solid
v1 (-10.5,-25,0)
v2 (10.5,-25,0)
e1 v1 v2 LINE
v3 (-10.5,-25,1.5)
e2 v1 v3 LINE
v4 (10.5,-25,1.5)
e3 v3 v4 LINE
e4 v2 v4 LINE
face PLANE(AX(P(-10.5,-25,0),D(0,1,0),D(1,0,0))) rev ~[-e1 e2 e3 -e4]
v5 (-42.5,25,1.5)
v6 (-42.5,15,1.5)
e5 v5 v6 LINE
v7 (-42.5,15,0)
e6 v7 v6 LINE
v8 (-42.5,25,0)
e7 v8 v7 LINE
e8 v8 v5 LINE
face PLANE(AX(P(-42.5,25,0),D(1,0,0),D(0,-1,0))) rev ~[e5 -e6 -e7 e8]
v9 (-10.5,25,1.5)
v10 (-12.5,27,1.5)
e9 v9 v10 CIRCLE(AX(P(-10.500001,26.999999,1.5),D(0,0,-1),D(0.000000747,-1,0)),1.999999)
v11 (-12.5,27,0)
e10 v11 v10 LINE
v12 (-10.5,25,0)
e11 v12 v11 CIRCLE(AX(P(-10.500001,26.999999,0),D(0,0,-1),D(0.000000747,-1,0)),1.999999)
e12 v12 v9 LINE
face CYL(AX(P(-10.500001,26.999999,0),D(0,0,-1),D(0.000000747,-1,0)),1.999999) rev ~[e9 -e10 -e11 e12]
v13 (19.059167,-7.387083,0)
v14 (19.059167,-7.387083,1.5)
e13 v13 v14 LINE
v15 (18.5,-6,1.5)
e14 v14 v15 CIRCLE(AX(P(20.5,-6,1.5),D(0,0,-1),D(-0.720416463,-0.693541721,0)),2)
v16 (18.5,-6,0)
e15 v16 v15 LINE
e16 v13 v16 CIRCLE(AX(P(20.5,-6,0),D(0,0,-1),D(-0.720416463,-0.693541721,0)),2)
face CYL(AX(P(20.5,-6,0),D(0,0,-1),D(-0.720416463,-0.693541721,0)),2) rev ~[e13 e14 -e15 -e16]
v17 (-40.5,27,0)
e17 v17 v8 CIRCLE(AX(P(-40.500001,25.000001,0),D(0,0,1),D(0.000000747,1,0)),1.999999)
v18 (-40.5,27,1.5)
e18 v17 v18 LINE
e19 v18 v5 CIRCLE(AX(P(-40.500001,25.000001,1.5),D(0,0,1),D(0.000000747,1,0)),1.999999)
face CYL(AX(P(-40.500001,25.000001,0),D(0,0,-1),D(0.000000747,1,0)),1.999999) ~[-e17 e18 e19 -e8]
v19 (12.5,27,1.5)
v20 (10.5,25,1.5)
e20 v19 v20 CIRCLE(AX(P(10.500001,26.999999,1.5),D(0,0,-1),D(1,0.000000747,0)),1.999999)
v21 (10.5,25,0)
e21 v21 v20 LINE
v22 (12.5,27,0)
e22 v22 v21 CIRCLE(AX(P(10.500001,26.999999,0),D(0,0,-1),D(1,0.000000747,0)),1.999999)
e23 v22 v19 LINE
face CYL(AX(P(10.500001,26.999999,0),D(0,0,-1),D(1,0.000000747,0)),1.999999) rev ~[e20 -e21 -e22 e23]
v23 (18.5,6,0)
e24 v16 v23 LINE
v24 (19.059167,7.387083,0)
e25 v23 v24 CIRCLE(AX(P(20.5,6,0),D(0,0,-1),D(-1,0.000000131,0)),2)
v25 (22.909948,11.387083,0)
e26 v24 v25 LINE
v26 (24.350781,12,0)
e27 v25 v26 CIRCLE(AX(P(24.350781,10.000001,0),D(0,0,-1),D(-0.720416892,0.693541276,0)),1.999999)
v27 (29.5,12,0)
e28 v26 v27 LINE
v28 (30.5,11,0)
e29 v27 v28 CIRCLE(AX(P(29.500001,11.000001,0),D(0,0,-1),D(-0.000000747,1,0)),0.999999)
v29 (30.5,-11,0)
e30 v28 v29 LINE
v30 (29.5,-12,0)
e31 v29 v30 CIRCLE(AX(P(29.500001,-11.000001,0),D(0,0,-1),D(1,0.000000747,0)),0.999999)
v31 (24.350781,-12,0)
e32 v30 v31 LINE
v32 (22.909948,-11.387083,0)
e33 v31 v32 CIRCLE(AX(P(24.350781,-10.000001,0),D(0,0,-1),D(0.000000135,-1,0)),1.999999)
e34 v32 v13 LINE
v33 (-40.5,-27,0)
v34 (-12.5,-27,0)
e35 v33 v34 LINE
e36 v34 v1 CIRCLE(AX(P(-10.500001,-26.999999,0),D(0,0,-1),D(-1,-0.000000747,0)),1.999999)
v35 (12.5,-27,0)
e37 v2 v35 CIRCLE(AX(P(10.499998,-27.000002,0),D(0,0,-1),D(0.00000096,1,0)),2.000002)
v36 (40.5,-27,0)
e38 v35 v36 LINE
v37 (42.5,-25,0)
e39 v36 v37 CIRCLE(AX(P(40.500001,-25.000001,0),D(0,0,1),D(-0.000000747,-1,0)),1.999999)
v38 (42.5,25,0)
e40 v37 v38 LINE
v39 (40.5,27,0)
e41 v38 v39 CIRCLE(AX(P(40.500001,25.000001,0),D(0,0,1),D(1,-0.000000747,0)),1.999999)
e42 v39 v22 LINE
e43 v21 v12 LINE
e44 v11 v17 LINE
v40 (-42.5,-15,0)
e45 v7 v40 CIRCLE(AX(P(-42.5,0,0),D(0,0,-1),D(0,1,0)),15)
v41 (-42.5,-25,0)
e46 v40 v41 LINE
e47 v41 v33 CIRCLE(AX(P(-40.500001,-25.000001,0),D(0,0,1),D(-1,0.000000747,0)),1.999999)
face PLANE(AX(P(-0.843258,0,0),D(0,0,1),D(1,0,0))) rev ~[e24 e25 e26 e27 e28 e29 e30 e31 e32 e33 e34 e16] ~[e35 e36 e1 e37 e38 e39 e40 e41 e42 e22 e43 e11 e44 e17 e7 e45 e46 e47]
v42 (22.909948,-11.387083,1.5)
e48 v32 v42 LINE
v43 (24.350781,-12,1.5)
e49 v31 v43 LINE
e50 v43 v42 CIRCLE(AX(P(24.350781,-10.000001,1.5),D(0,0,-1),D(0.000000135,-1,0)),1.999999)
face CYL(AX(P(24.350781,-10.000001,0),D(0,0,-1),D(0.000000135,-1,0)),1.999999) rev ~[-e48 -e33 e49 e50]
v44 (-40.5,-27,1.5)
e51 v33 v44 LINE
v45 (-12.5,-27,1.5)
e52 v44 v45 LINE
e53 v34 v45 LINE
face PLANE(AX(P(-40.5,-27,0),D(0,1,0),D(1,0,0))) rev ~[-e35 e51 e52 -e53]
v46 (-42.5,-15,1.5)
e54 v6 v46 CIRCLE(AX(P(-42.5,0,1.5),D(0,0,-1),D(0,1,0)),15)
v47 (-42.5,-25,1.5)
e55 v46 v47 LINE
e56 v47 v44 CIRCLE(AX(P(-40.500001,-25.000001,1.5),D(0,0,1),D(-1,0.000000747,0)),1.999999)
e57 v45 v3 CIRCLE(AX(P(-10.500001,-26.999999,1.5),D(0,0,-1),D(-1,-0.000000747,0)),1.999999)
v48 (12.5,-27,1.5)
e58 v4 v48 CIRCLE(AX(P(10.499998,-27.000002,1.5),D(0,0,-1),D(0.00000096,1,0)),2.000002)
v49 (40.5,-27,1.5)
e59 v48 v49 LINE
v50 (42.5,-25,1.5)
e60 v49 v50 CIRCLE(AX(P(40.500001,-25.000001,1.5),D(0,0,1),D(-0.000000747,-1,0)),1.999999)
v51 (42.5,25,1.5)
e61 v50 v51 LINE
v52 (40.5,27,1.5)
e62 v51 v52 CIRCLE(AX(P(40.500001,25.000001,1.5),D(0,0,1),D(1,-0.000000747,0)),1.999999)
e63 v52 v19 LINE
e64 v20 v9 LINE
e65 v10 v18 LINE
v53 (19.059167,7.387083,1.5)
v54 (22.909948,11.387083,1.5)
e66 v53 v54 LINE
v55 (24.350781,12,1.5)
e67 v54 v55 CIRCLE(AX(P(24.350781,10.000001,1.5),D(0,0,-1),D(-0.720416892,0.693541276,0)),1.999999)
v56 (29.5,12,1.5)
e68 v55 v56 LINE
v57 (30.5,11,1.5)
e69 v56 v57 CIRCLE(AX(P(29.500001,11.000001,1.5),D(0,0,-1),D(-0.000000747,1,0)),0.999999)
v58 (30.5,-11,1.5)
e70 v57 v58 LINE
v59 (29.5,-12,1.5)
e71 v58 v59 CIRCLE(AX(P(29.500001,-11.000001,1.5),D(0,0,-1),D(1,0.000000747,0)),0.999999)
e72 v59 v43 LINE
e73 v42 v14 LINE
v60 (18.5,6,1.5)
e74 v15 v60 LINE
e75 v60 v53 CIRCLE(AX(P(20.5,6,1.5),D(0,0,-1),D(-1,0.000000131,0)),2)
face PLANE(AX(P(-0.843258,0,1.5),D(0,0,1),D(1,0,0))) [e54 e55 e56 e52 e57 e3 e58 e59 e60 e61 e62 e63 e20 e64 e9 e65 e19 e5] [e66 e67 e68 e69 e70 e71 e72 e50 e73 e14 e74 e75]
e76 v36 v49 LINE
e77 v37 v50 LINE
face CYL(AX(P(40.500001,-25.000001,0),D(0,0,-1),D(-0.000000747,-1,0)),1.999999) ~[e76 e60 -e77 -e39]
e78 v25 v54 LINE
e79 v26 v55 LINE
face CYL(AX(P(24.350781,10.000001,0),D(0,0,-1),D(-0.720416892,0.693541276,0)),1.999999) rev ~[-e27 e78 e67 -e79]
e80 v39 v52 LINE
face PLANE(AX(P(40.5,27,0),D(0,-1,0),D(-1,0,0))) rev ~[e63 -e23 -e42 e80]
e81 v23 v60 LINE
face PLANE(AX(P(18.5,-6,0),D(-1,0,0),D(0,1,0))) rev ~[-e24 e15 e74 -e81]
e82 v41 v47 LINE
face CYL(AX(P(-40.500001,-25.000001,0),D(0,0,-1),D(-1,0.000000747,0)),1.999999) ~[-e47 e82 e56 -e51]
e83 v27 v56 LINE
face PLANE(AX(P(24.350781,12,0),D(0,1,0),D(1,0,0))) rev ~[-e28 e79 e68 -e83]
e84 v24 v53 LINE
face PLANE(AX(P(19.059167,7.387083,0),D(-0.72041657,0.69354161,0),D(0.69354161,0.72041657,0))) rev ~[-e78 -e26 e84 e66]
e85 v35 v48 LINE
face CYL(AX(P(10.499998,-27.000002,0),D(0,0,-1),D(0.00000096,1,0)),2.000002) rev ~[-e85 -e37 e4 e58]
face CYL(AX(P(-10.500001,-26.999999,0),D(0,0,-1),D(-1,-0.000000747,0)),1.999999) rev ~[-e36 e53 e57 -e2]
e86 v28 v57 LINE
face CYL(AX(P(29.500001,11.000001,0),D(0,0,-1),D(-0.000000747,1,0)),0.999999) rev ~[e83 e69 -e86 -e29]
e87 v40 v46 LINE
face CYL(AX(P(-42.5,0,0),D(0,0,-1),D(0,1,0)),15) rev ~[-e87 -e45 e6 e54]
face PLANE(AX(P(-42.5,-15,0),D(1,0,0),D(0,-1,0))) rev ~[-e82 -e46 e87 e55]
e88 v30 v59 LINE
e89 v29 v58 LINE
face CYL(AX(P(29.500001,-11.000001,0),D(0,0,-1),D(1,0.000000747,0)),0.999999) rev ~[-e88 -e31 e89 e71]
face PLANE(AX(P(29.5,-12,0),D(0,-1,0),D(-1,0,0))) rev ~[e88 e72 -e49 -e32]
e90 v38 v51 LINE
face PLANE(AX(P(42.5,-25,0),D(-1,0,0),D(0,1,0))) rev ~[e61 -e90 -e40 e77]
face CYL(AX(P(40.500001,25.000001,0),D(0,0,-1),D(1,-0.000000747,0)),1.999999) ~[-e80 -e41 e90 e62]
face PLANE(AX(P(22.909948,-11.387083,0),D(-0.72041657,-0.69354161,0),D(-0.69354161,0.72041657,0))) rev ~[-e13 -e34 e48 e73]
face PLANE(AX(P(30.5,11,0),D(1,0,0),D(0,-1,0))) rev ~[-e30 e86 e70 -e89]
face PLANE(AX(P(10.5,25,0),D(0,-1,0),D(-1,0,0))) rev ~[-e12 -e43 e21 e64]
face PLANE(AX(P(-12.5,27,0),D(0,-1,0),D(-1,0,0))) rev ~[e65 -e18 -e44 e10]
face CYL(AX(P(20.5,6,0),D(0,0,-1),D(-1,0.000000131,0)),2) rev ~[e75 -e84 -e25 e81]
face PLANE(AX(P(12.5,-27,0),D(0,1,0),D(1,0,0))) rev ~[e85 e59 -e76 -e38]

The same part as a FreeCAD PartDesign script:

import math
import FreeCAD as App
import Part
import Sketcher

doc = App.newDocument("Part")
body = doc.addObject("PartDesign::Body", "Body")

sketch1 = body.newObject("Sketcher::SketchObject", "Sketch")
sketch1.AttachmentSupport = (doc.getObject("XY_Plane"), [""])
sketch1.MapMode = "FlatFace"
sketch1.addGeometry(Part.LineSegment(App.Vector(12.5, -27, 0), App.Vector(40.5, -27, 0)), False)
sketch1.addGeometry(Part.ArcOfCircle(Part.Circle(App.Vector(40.500001, -25.000001, 0), App.Vector(0, 0, 1), 1.999999), math.radians(-90.000043), math.radians(0.000043)), False)
sketch1.addGeometry(Part.LineSegment(App.Vector(42.5, -25, 0), App.Vector(42.5, 25, 0)), False)
sketch1.addGeometry(Part.ArcOfCircle(Part.Circle(App.Vector(40.500001, 25.000001, 0), App.Vector(0, 0, 1), 1.999999), math.radians(-0.000043), math.radians(90.000043)), False)
sketch1.addGeometry(Part.LineSegment(App.Vector(40.5, 27, 0), App.Vector(12.5, 27, 0)), False)
sketch1.addGeometry(Part.ArcOfCircle(Part.Circle(App.Vector(10.500001, 26.999999, 0), App.Vector(0, 0, 1), 1.999999), math.radians(-90.000043), math.radians(0.000043)), False)
sketch1.addGeometry(Part.LineSegment(App.Vector(10.5, 25, 0), App.Vector(-10.5, 25, 0)), False)
sketch1.addGeometry(Part.ArcOfCircle(Part.Circle(App.Vector(-10.500001, 26.999999, 0), App.Vector(0, 0, 1), 1.999999), math.radians(179.999957), math.radians(270.000043)), False)
sketch1.addGeometry(Part.LineSegment(App.Vector(-12.5, 27, 0), App.Vector(-40.5, 27, 0)), False)
sketch1.addGeometry(Part.ArcOfCircle(Part.Circle(App.Vector(-40.500001, 25.000001, 0), App.Vector(0, 0, 1), 1.999999), math.radians(89.999957), math.radians(180.000043)), False)
sketch1.addGeometry(Part.LineSegment(App.Vector(-42.5, 25, 0), App.Vector(-42.5, 15, 0)), False)
sketch1.addGeometry(Part.ArcOfCircle(Part.Circle(App.Vector(-42.5, 0, 0), App.Vector(0, 0, 1), 15), math.radians(-90), math.radians(90)), False)
sketch1.addGeometry(Part.LineSegment(App.Vector(-42.5, -15, 0), App.Vector(-42.5, -25, 0)), False)
sketch1.addGeometry(Part.ArcOfCircle(Part.Circle(App.Vector(-40.500001, -25.000001, 0), App.Vector(0, 0, 1), 1.999999), math.radians(179.999957), math.radians(270.000043)), False)
sketch1.addGeometry(Part.LineSegment(App.Vector(-40.5, -27, 0), App.Vector(-12.5, -27, 0)), False)
sketch1.addGeometry(Part.ArcOfCircle(Part.Circle(App.Vector(-10.500001, -26.999999, 0), App.Vector(0, 0, 1), 1.999999), math.radians(89.999957), math.radians(180.000043)), False)
sketch1.addGeometry(Part.LineSegment(App.Vector(-10.5, -25, 0), App.Vector(10.5, -25, 0)), False)
sketch1.addGeometry(Part.ArcOfCircle(Part.Circle(App.Vector(10.499998, -27.000002, 0), App.Vector(0, 0, 1), 2.000002), math.radians(0.000055), math.radians(89.999945)), False)
sketch1.addGeometry(Part.ArcOfCircle(Part.Circle(App.Vector(29.500001, 11.000001, 0), App.Vector(0, 0, 1), 0.999999), math.radians(-0.000043), math.radians(90.000043)), False)
sketch1.addGeometry(Part.LineSegment(App.Vector(30.5, 11, 0), App.Vector(30.5, -11, 0)), False)
sketch1.addGeometry(Part.ArcOfCircle(Part.Circle(App.Vector(29.500001, -11.000001, 0), App.Vector(0, 0, 1), 0.999999), math.radians(-90.000043), math.radians(0.000043)), False)
sketch1.addGeometry(Part.LineSegment(App.Vector(29.5, -12, 0), App.Vector(24.350781, -12, 0)), False)
sketch1.addGeometry(Part.ArcOfCircle(Part.Circle(App.Vector(24.350781, -10.000001, 0), App.Vector(0, 0, 1), 1.999999), math.radians(-136.088911), math.radians(-89.999992)), False)
sketch1.addGeometry(Part.LineSegment(App.Vector(22.909948, -11.387083, 0), App.Vector(19.059167, -7.387083, 0)), False)
sketch1.addGeometry(Part.ArcOfCircle(Part.Circle(App.Vector(20.5, -6, 0), App.Vector(0, 0, 1), 2), math.radians(-179.999993), math.radians(-136.088875)), False)
sketch1.addGeometry(Part.LineSegment(App.Vector(18.5, -6, 0), App.Vector(18.5, 6, 0)), False)
sketch1.addGeometry(Part.ArcOfCircle(Part.Circle(App.Vector(20.5, 6, 0), App.Vector(0, 0, 1), 2), math.radians(136.088875), math.radians(179.999993)), False)
sketch1.addGeometry(Part.LineSegment(App.Vector(19.059167, 7.387083, 0), App.Vector(22.909948, 11.387083, 0)), False)
sketch1.addGeometry(Part.ArcOfCircle(Part.Circle(App.Vector(24.350781, 10.000001, 0), App.Vector(0, 0, 1), 1.999999), math.radians(89.999992), math.radians(136.088911)), False)
sketch1.addGeometry(Part.LineSegment(App.Vector(24.350781, 12, 0), App.Vector(29.5, 12, 0)), False)
sketch1.addConstraint(Sketcher.Constraint("Tangent", 0, 2, 1, 1))
sketch1.addConstraint(Sketcher.Constraint("Tangent", 1, 2, 2, 1))
sketch1.addConstraint(Sketcher.Constraint("Tangent", 2, 2, 3, 1))
sketch1.addConstraint(Sketcher.Constraint("Tangent", 3, 2, 4, 1))
sketch1.addConstraint(Sketcher.Constraint("Coincident", 4, 2, 5, 2))
sketch1.addConstraint(Sketcher.Constraint("Tangent", 5, 1, 6, 1))
sketch1.addConstraint(Sketcher.Constraint("Tangent", 6, 2, 7, 2))
sketch1.addConstraint(Sketcher.Constraint("Coincident", 7, 1, 8, 1))
sketch1.addConstraint(Sketcher.Constraint("Tangent", 8, 2, 9, 1))
sketch1.addConstraint(Sketcher.Constraint("Tangent", 9, 2, 10, 1))
sketch1.addConstraint(Sketcher.Constraint("Coincident", 10, 2, 11, 2))
sketch1.addConstraint(Sketcher.Constraint("Coincident", 11, 1, 12, 1))
sketch1.addConstraint(Sketcher.Constraint("Tangent", 12, 2, 13, 1))
sketch1.addConstraint(Sketcher.Constraint("Tangent", 13, 2, 14, 1))
sketch1.addConstraint(Sketcher.Constraint("Coincident", 14, 2, 15, 2))
sketch1.addConstraint(Sketcher.Constraint("Tangent", 15, 1, 16, 1))
sketch1.addConstraint(Sketcher.Constraint("Tangent", 16, 2, 17, 2))
sketch1.addConstraint(Sketcher.Constraint("Coincident", 17, 1, 0, 1))
sketch1.addConstraint(Sketcher.Constraint("Tangent", 18, 1, 19, 1))
sketch1.addConstraint(Sketcher.Constraint("Tangent", 19, 2, 20, 2))
sketch1.addConstraint(Sketcher.Constraint("Tangent", 20, 1, 21, 1))
sketch1.addConstraint(Sketcher.Constraint("Tangent", 21, 2, 22, 2))
sketch1.addConstraint(Sketcher.Constraint("Tangent", 22, 1, 23, 1))
sketch1.addConstraint(Sketcher.Constraint("Tangent", 23, 2, 24, 2))
sketch1.addConstraint(Sketcher.Constraint("Tangent", 24, 1, 25, 1))
sketch1.addConstraint(Sketcher.Constraint("Tangent", 25, 2, 26, 2))
sketch1.addConstraint(Sketcher.Constraint("Tangent", 26, 1, 27, 1))
sketch1.addConstraint(Sketcher.Constraint("Tangent", 27, 2, 28, 2))
sketch1.addConstraint(Sketcher.Constraint("Tangent", 28, 1, 29, 1))
sketch1.addConstraint(Sketcher.Constraint("Tangent", 29, 2, 18, 2))
sketch1.addConstraint(Sketcher.Constraint("Horizontal", 0))
sketch1.addConstraint(Sketcher.Constraint("Vertical", 2))
sketch1.addConstraint(Sketcher.Constraint("Horizontal", 4))
sketch1.addConstraint(Sketcher.Constraint("Horizontal", 6))
sketch1.addConstraint(Sketcher.Constraint("Horizontal", 8))
sketch1.addConstraint(Sketcher.Constraint("Vertical", 10))
sketch1.addConstraint(Sketcher.Constraint("Vertical", 12))
sketch1.addConstraint(Sketcher.Constraint("Horizontal", 14))
sketch1.addConstraint(Sketcher.Constraint("Horizontal", 16))
sketch1.addConstraint(Sketcher.Constraint("Vertical", 19))
sketch1.addConstraint(Sketcher.Constraint("Horizontal", 21))
sketch1.addConstraint(Sketcher.Constraint("Vertical", 25))
sketch1.addConstraint(Sketcher.Constraint("Horizontal", 29))
sketch1.addConstraint(Sketcher.Constraint("Equal", 1, 3))
sketch1.addConstraint(Sketcher.Constraint("Equal", 3, 5))
sketch1.addConstraint(Sketcher.Constraint("Equal", 5, 7))
sketch1.addConstraint(Sketcher.Constraint("Equal", 7, 9))
sketch1.addConstraint(Sketcher.Constraint("Equal", 9, 13))
sketch1.addConstraint(Sketcher.Constraint("Equal", 13, 15))
sketch1.addConstraint(Sketcher.Constraint("Equal", 18, 20))
sketch1.addConstraint(Sketcher.Constraint("Equal", 15, 22))
sketch1.addConstraint(Sketcher.Constraint("Equal", 22, 24))
sketch1.addConstraint(Sketcher.Constraint("Equal", 24, 26))
sketch1.addConstraint(Sketcher.Constraint("Equal", 26, 28))
sketch1.addConstraint(Sketcher.Constraint("Symmetric", 1, 3, 9, 3, -1, 1))
sketch1.addConstraint(Sketcher.Constraint("Symmetric", 3, 3, 13, 3, -1, 1))
sketch1.addConstraint(Sketcher.Constraint("Symmetric", 5, 3, 15, 3, -1, 1))
sketch1.addConstraint(Sketcher.Constraint("Symmetric", 7, 3, 17, 3, -1, 1))
sketch1.addConstraint(Sketcher.Constraint("Symmetric", 4, 2, 7, 1, -2))
sketch1.addConstraint(Sketcher.Constraint("Symmetric", 22, 3, 28, 3, -1))
sketch1.addConstraint(Sketcher.Constraint("PointOnObject", 11, 3, -1))
sketch1.addConstraint(Sketcher.Constraint("Horizontal", 17, 3, 0, 2))
sketch1.addConstraint(Sketcher.Constraint("Vertical", 11, 3, 9, 2))
sketch1.addConstraint(Sketcher.Constraint("Vertical", 23, 2, 26, 1))
sketch1.addConstraint(Sketcher.Constraint("Radius", 1, 1.999999))
sketch1.addConstraint(Sketcher.Constraint("Radius", 11, 15.0))
sketch1.addConstraint(Sketcher.Constraint("Radius", 18, 0.999999))
sketch1.addConstraint(Sketcher.Constraint("DistanceX", 0, 1, 0, 2, 28.0))
sketch1.addConstraint(Sketcher.Constraint("DistanceX", 6, 2, 6, 1, 21.0))
sketch1.addConstraint(Sketcher.Constraint("DistanceY", 2, 1, 2, 2, 50.0))
sketch1.addConstraint(Sketcher.Constraint("DistanceY", 19, 2, 19, 1, 22.0))
sketch1.addConstraint(Sketcher.Constraint("DistanceY", 25, 1, 25, 2, 12.0))
sketch1.addConstraint(Sketcher.Constraint("DistanceX", 18, 3, 3, 3, 11.000001))
sketch1.addConstraint(Sketcher.Constraint("DistanceX", 24, 3, 20, 3, 9.000001))
sketch1.addConstraint(Sketcher.Constraint("DistanceX", 21, 2, 21, 1, 5.149219))
pad1 = body.newObject("PartDesign::Pad", "Pad")
pad1.Profile = sketch1
pad1.Length = 1.5

doc.recompute()
